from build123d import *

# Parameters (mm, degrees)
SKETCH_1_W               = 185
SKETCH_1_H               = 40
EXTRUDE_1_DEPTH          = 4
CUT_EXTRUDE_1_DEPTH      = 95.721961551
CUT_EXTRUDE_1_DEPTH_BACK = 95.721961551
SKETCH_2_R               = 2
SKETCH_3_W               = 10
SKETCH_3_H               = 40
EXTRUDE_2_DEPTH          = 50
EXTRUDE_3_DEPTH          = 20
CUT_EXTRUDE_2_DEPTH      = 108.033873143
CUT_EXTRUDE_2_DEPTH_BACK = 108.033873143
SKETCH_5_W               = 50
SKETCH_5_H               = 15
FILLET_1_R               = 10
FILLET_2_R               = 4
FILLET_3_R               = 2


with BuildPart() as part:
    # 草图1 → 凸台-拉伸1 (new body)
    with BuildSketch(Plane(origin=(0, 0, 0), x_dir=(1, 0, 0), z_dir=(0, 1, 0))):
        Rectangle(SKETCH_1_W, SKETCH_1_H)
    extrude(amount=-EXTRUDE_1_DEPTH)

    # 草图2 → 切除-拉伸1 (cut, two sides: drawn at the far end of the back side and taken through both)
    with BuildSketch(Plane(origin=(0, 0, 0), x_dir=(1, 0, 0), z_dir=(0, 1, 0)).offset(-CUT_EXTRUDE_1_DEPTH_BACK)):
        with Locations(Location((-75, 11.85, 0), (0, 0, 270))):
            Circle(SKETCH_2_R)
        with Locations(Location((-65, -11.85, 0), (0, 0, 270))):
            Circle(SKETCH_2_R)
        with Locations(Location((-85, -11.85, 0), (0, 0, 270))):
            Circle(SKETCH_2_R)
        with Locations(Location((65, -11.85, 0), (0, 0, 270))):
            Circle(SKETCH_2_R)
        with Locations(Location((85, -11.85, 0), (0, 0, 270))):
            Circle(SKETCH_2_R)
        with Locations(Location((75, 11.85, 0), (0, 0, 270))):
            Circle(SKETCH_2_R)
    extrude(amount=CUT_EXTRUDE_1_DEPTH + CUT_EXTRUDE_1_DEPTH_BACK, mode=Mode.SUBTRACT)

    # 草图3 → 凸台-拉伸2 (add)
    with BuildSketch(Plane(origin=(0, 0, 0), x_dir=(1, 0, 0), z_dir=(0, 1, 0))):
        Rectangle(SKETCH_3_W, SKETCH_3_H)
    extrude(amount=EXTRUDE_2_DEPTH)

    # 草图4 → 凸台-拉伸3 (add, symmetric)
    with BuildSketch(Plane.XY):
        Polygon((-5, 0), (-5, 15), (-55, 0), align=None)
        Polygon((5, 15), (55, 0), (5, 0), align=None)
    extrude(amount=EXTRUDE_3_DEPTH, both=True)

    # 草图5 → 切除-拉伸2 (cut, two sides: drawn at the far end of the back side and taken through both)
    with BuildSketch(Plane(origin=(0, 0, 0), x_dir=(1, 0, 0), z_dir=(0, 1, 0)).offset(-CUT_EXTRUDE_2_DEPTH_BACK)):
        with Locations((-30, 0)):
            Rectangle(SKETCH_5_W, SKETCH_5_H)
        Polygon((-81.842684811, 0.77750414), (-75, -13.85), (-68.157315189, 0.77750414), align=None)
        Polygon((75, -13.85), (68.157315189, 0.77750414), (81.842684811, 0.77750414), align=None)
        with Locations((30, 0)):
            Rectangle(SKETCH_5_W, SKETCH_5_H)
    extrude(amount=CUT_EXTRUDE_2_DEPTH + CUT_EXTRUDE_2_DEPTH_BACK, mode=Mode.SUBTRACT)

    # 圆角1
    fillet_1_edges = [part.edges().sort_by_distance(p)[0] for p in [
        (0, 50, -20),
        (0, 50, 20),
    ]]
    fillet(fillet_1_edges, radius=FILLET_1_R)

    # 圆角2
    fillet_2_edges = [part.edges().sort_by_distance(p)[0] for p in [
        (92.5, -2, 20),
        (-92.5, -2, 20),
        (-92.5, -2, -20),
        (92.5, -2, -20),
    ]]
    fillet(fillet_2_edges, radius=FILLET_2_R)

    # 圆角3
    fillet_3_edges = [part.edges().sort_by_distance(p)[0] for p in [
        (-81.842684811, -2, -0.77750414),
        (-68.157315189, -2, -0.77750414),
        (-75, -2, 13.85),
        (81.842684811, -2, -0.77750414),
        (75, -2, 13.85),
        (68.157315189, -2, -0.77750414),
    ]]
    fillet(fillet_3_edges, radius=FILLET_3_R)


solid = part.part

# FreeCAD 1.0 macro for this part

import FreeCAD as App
import Part
import Sketcher
from FreeCAD import Vector
Q = App.Units.Quantity


def edges_at(feature, points):
    """Names of the edges that pass closest to the given points."""
    edges = feature.Shape.Edges
    near = lambda p: min(range(len(edges)), key=lambda i: edges[i].distToShape(Part.Vertex(*p))[0])
    return sorted({f"Edge{near(p) + 1}" for p in points})


def add_polygon(sketch, points):
    """Adds a closed chain of lines whose ends are joined by coincident constraints."""
    first, n = sketch.GeometryCount, len(points)
    for a, b in zip(points, points[1:] + points[:1]):
        sketch.addGeometry(Part.LineSegment(App.Vector(*a, 0), App.Vector(*b, 0)), False)
    for i in range(n):
        sketch.addConstraint(Sketcher.Constraint("Coincident", first + i, 2, first + (i + 1) % n, 1))

doc = App.newDocument("Part")
body = doc.addObject("PartDesign::Body", "Body")

sketch1 = body.newObject("Sketcher::SketchObject", "Sketch")
sketch1.AttachmentSupport = (doc.getObject("XZ_Plane"), [""])
sketch1.MapMode = "FlatFace"
add_polygon(sketch1, [(-92.5, -20), (-92.5, 20), (92.5, 20), (92.5, -20)])
sketch1.addConstraint([
    Sketcher.Constraint("Vertical", 0),
    Sketcher.Constraint("Horizontal", 1),
    Sketcher.Constraint("Vertical", 2),
    Sketcher.Constraint("Horizontal", 3),
    Sketcher.Constraint("Symmetric", 0, 2, 2, 2, -1, 1),
    Sketcher.Constraint("DistanceX", 1, 1, 1, 2, 185.0),
    Sketcher.Constraint("DistanceY", 0, 1, 0, 2, 40.0),
])
pad1 = body.newObject("PartDesign::Pad", "Pad")
pad1.Profile = sketch1
pad1.Length = 4

sketch2 = body.newObject("Sketcher::SketchObject", "Sketch001")
sketch2.AttachmentSupport = (doc.getObject("XZ_Plane"), [""])
sketch2.MapMode = "FlatFace"
sketch2.addGeometry([
    Part.Circle(Vector(-75, -11.85, 0), Vector(0, 0, 1), 2),
    Part.Circle(Vector(-65, 11.85, 0), Vector(0, 0, 1), 2),
    Part.Circle(Vector(-85, 11.85, 0), Vector(0, 0, 1), 2),
    Part.Circle(Vector(65, 11.85, 0), Vector(0, 0, 1), 2),
    Part.Circle(Vector(85, 11.85, 0), Vector(0, 0, 1), 2),
    Part.Circle(Vector(75, -11.85, 0), Vector(0, 0, 1), 2),
], False)
sketch2.addConstraint([
    Sketcher.Constraint("Equal", 0, 1),
    Sketcher.Constraint("Equal", 1, 2),
    Sketcher.Constraint("Equal", 2, 3),
    Sketcher.Constraint("Equal", 3, 4),
    Sketcher.Constraint("Equal", 4, 5),
    Sketcher.Constraint("Symmetric", 1, 3, 3, 3, -2),
    Sketcher.Constraint("Symmetric", 2, 3, 4, 3, -2),
    Sketcher.Constraint("Symmetric", 0, 3, 5, 3, -2),
    Sketcher.Constraint("Horizontal", 1, 3, 2, 3),
    Sketcher.Constraint("Diameter", 0, 4.0),
    Sketcher.Constraint("DistanceX", 0, 3, -1, 1, 75.0),
    Sketcher.Constraint("DistanceX", 1, 3, -1, 1, 65.0),
    Sketcher.Constraint("DistanceX", 2, 3, -1, 1, 85.0),
    Sketcher.Constraint("DistanceY", 0, 3, 1, 3, 23.7),
    Sketcher.Constraint("DistanceY", 0, 3, -1, 1, 11.85),
])
pocket1 = body.newObject("PartDesign::Pocket", "Pocket")
pocket1.Profile = sketch2
pocket1.Type = "ThroughAll"
pocket1.Midplane = True

sketch3 = body.newObject("Sketcher::SketchObject", "Sketch002")
sketch3.AttachmentSupport = (doc.getObject("XZ_Plane"), [""])
sketch3.MapMode = "FlatFace"
add_polygon(sketch3, [(-5, -20), (-5, 20), (5, 20), (5, -20)])
sketch3.addConstraint([
    Sketcher.Constraint("Vertical", 0),
    Sketcher.Constraint("Horizontal", 1),
    Sketcher.Constraint("Vertical", 2),
    Sketcher.Constraint("Horizontal", 3),
    Sketcher.Constraint("Symmetric", 0, 2, 2, 2, -1, 1),
    Sketcher.Constraint("DistanceX", 1, 1, 1, 2, 10.0),
    Sketcher.Constraint("DistanceY", 0, 1, 0, 2, 40.0),
])
pad2 = body.newObject("PartDesign::Pad", "Pad001")
pad2.Profile = sketch3
pad2.Length = 50
pad2.Reversed = True

sketch4 = body.newObject("Sketcher::SketchObject", "Sketch003")
sketch4.AttachmentSupport = (doc.getObject("XY_Plane"), [""])
sketch4.MapMode = "FlatFace"
add_polygon(sketch4, [(-5, 0), (-5, 15), (-55, 0)])
add_polygon(sketch4, [(55, 0), (5, 15), (5, 0)])
sketch4.addConstraint([
    Sketcher.Constraint("Vertical", 0),
    Sketcher.Constraint("Horizontal", 2),
    Sketcher.Constraint("Vertical", 4),
    Sketcher.Constraint("Horizontal", 5),
    Sketcher.Constraint("Symmetric", 2, 2, 4, 2, -1, 1),
    Sketcher.Constraint("Symmetric", 1, 2, 5, 2, -2),
    Sketcher.Constraint("Horizontal", 0, 2, 3, 2),
    Sketcher.Constraint("DistanceX", 2, 1, 2, 2, 50.0),
    Sketcher.Constraint("DistanceY", 0, 1, 0, 2, 15.0),
    Sketcher.Constraint("DistanceX", 0, 2, -1, 1, 5.0),
])
pad3 = body.newObject("PartDesign::Pad", "Pad002")
pad3.Profile = sketch4
pad3.Length = 40
pad3.Midplane = True

sketch5 = body.newObject("Sketcher::SketchObject", "Sketch004")
sketch5.AttachmentSupport = (doc.getObject("XZ_Plane"), [""])
sketch5.MapMode = "FlatFace"
add_polygon(sketch5, [(-55, -7.5), (-55, 7.5), (-5, 7.5), (-5, -7.5)])
add_polygon(sketch5, [(-81.842685, -0.777504), (-75, 13.85), (-68.157315, -0.777504)])
add_polygon(sketch5, [(68.157315, -0.777504), (75, 13.85), (81.842685, -0.777504)])
add_polygon(sketch5, [(5, -7.5), (5, 7.5), (55, 7.5), (55, -7.5)])
sketch5.addConstraint([
    Sketcher.Constraint("Vertical", 0),
    Sketcher.Constraint("Horizontal", 1),
    Sketcher.Constraint("Vertical", 2),
    Sketcher.Constraint("Horizontal", 3),
    Sketcher.Constraint("Horizontal", 6),
    Sketcher.Constraint("Horizontal", 9),
    Sketcher.Constraint("Vertical", 10),
    Sketcher.Constraint("Horizontal", 11),
    Sketcher.Constraint("Vertical", 12),
    Sketcher.Constraint("Horizontal", 13),
    Sketcher.Constraint("Symmetric", 2, 2, 10, 2, -1, 1),
    Sketcher.Constraint("Symmetric", 0, 2, 12, 2, -1, 1),
    Sketcher.Constraint("Symmetric", 4, 2, 7, 2, -2),
    Sketcher.Constraint("Symmetric", 6, 2, 8, 2, -2),
    Sketcher.Constraint("Parallel", 4, 7),
    Sketcher.Constraint("Parallel", 5, 8),
    Sketcher.Constraint("Horizontal", 1, 2, 10, 2),
    Sketcher.Constraint("DistanceX", 1, 1, 1, 2, 50.0),
    Sketcher.Constraint("DistanceY", 0, 1, 0, 2, 15.0),
    Sketcher.Constraint("DistanceX", 0, 2, -1, 1, 55.0),
    Sketcher.Constraint("DistanceX", 4, 2, -1, 1, 75.0),
    Sketcher.Constraint("Angle", 4, Q("64.930005 deg")),
    Sketcher.Constraint("DistanceY", -1, 1, 4, 2, 13.85),
    Sketcher.Constraint("DistanceX", 6, 2, 6, 1, 13.68537),
])
pocket2 = body.newObject("PartDesign::Pocket", "Pocket001")
pocket2.Profile = sketch5
pocket2.Type = "ThroughAll"
pocket2.Midplane = True
doc.recompute()

fillet = body.newObject("PartDesign::Fillet", "Fillet")
fillet.Base = (pocket2, edges_at(pocket2, [(0, 50, -20), (0, 50, 20)]))
fillet.Radius = 10
doc.recompute()

fillet2 = body.newObject("PartDesign::Fillet", "Fillet001")
fillet2.Base = (fillet, edges_at(fillet, [
    (92.5, -2, 20),
    (-92.5, -2, 20),
    (-92.5, -2, -20),
    (92.5, -2, -20),
]))
fillet2.Radius = 4
doc.recompute()

fillet3 = body.newObject("PartDesign::Fillet", "Fillet002")
fillet3.Base = (fillet2, edges_at(fillet2, [
    (-81.843, -2, -0.778),
    (-68.157, -2, -0.778),
    (-75, -2, 13.85),
    (81.843, -2, -0.778),
    (75, -2, 13.85),
    (68.157, -2, -0.778),
]))
fillet3.Radius = 2

doc.recompute()
